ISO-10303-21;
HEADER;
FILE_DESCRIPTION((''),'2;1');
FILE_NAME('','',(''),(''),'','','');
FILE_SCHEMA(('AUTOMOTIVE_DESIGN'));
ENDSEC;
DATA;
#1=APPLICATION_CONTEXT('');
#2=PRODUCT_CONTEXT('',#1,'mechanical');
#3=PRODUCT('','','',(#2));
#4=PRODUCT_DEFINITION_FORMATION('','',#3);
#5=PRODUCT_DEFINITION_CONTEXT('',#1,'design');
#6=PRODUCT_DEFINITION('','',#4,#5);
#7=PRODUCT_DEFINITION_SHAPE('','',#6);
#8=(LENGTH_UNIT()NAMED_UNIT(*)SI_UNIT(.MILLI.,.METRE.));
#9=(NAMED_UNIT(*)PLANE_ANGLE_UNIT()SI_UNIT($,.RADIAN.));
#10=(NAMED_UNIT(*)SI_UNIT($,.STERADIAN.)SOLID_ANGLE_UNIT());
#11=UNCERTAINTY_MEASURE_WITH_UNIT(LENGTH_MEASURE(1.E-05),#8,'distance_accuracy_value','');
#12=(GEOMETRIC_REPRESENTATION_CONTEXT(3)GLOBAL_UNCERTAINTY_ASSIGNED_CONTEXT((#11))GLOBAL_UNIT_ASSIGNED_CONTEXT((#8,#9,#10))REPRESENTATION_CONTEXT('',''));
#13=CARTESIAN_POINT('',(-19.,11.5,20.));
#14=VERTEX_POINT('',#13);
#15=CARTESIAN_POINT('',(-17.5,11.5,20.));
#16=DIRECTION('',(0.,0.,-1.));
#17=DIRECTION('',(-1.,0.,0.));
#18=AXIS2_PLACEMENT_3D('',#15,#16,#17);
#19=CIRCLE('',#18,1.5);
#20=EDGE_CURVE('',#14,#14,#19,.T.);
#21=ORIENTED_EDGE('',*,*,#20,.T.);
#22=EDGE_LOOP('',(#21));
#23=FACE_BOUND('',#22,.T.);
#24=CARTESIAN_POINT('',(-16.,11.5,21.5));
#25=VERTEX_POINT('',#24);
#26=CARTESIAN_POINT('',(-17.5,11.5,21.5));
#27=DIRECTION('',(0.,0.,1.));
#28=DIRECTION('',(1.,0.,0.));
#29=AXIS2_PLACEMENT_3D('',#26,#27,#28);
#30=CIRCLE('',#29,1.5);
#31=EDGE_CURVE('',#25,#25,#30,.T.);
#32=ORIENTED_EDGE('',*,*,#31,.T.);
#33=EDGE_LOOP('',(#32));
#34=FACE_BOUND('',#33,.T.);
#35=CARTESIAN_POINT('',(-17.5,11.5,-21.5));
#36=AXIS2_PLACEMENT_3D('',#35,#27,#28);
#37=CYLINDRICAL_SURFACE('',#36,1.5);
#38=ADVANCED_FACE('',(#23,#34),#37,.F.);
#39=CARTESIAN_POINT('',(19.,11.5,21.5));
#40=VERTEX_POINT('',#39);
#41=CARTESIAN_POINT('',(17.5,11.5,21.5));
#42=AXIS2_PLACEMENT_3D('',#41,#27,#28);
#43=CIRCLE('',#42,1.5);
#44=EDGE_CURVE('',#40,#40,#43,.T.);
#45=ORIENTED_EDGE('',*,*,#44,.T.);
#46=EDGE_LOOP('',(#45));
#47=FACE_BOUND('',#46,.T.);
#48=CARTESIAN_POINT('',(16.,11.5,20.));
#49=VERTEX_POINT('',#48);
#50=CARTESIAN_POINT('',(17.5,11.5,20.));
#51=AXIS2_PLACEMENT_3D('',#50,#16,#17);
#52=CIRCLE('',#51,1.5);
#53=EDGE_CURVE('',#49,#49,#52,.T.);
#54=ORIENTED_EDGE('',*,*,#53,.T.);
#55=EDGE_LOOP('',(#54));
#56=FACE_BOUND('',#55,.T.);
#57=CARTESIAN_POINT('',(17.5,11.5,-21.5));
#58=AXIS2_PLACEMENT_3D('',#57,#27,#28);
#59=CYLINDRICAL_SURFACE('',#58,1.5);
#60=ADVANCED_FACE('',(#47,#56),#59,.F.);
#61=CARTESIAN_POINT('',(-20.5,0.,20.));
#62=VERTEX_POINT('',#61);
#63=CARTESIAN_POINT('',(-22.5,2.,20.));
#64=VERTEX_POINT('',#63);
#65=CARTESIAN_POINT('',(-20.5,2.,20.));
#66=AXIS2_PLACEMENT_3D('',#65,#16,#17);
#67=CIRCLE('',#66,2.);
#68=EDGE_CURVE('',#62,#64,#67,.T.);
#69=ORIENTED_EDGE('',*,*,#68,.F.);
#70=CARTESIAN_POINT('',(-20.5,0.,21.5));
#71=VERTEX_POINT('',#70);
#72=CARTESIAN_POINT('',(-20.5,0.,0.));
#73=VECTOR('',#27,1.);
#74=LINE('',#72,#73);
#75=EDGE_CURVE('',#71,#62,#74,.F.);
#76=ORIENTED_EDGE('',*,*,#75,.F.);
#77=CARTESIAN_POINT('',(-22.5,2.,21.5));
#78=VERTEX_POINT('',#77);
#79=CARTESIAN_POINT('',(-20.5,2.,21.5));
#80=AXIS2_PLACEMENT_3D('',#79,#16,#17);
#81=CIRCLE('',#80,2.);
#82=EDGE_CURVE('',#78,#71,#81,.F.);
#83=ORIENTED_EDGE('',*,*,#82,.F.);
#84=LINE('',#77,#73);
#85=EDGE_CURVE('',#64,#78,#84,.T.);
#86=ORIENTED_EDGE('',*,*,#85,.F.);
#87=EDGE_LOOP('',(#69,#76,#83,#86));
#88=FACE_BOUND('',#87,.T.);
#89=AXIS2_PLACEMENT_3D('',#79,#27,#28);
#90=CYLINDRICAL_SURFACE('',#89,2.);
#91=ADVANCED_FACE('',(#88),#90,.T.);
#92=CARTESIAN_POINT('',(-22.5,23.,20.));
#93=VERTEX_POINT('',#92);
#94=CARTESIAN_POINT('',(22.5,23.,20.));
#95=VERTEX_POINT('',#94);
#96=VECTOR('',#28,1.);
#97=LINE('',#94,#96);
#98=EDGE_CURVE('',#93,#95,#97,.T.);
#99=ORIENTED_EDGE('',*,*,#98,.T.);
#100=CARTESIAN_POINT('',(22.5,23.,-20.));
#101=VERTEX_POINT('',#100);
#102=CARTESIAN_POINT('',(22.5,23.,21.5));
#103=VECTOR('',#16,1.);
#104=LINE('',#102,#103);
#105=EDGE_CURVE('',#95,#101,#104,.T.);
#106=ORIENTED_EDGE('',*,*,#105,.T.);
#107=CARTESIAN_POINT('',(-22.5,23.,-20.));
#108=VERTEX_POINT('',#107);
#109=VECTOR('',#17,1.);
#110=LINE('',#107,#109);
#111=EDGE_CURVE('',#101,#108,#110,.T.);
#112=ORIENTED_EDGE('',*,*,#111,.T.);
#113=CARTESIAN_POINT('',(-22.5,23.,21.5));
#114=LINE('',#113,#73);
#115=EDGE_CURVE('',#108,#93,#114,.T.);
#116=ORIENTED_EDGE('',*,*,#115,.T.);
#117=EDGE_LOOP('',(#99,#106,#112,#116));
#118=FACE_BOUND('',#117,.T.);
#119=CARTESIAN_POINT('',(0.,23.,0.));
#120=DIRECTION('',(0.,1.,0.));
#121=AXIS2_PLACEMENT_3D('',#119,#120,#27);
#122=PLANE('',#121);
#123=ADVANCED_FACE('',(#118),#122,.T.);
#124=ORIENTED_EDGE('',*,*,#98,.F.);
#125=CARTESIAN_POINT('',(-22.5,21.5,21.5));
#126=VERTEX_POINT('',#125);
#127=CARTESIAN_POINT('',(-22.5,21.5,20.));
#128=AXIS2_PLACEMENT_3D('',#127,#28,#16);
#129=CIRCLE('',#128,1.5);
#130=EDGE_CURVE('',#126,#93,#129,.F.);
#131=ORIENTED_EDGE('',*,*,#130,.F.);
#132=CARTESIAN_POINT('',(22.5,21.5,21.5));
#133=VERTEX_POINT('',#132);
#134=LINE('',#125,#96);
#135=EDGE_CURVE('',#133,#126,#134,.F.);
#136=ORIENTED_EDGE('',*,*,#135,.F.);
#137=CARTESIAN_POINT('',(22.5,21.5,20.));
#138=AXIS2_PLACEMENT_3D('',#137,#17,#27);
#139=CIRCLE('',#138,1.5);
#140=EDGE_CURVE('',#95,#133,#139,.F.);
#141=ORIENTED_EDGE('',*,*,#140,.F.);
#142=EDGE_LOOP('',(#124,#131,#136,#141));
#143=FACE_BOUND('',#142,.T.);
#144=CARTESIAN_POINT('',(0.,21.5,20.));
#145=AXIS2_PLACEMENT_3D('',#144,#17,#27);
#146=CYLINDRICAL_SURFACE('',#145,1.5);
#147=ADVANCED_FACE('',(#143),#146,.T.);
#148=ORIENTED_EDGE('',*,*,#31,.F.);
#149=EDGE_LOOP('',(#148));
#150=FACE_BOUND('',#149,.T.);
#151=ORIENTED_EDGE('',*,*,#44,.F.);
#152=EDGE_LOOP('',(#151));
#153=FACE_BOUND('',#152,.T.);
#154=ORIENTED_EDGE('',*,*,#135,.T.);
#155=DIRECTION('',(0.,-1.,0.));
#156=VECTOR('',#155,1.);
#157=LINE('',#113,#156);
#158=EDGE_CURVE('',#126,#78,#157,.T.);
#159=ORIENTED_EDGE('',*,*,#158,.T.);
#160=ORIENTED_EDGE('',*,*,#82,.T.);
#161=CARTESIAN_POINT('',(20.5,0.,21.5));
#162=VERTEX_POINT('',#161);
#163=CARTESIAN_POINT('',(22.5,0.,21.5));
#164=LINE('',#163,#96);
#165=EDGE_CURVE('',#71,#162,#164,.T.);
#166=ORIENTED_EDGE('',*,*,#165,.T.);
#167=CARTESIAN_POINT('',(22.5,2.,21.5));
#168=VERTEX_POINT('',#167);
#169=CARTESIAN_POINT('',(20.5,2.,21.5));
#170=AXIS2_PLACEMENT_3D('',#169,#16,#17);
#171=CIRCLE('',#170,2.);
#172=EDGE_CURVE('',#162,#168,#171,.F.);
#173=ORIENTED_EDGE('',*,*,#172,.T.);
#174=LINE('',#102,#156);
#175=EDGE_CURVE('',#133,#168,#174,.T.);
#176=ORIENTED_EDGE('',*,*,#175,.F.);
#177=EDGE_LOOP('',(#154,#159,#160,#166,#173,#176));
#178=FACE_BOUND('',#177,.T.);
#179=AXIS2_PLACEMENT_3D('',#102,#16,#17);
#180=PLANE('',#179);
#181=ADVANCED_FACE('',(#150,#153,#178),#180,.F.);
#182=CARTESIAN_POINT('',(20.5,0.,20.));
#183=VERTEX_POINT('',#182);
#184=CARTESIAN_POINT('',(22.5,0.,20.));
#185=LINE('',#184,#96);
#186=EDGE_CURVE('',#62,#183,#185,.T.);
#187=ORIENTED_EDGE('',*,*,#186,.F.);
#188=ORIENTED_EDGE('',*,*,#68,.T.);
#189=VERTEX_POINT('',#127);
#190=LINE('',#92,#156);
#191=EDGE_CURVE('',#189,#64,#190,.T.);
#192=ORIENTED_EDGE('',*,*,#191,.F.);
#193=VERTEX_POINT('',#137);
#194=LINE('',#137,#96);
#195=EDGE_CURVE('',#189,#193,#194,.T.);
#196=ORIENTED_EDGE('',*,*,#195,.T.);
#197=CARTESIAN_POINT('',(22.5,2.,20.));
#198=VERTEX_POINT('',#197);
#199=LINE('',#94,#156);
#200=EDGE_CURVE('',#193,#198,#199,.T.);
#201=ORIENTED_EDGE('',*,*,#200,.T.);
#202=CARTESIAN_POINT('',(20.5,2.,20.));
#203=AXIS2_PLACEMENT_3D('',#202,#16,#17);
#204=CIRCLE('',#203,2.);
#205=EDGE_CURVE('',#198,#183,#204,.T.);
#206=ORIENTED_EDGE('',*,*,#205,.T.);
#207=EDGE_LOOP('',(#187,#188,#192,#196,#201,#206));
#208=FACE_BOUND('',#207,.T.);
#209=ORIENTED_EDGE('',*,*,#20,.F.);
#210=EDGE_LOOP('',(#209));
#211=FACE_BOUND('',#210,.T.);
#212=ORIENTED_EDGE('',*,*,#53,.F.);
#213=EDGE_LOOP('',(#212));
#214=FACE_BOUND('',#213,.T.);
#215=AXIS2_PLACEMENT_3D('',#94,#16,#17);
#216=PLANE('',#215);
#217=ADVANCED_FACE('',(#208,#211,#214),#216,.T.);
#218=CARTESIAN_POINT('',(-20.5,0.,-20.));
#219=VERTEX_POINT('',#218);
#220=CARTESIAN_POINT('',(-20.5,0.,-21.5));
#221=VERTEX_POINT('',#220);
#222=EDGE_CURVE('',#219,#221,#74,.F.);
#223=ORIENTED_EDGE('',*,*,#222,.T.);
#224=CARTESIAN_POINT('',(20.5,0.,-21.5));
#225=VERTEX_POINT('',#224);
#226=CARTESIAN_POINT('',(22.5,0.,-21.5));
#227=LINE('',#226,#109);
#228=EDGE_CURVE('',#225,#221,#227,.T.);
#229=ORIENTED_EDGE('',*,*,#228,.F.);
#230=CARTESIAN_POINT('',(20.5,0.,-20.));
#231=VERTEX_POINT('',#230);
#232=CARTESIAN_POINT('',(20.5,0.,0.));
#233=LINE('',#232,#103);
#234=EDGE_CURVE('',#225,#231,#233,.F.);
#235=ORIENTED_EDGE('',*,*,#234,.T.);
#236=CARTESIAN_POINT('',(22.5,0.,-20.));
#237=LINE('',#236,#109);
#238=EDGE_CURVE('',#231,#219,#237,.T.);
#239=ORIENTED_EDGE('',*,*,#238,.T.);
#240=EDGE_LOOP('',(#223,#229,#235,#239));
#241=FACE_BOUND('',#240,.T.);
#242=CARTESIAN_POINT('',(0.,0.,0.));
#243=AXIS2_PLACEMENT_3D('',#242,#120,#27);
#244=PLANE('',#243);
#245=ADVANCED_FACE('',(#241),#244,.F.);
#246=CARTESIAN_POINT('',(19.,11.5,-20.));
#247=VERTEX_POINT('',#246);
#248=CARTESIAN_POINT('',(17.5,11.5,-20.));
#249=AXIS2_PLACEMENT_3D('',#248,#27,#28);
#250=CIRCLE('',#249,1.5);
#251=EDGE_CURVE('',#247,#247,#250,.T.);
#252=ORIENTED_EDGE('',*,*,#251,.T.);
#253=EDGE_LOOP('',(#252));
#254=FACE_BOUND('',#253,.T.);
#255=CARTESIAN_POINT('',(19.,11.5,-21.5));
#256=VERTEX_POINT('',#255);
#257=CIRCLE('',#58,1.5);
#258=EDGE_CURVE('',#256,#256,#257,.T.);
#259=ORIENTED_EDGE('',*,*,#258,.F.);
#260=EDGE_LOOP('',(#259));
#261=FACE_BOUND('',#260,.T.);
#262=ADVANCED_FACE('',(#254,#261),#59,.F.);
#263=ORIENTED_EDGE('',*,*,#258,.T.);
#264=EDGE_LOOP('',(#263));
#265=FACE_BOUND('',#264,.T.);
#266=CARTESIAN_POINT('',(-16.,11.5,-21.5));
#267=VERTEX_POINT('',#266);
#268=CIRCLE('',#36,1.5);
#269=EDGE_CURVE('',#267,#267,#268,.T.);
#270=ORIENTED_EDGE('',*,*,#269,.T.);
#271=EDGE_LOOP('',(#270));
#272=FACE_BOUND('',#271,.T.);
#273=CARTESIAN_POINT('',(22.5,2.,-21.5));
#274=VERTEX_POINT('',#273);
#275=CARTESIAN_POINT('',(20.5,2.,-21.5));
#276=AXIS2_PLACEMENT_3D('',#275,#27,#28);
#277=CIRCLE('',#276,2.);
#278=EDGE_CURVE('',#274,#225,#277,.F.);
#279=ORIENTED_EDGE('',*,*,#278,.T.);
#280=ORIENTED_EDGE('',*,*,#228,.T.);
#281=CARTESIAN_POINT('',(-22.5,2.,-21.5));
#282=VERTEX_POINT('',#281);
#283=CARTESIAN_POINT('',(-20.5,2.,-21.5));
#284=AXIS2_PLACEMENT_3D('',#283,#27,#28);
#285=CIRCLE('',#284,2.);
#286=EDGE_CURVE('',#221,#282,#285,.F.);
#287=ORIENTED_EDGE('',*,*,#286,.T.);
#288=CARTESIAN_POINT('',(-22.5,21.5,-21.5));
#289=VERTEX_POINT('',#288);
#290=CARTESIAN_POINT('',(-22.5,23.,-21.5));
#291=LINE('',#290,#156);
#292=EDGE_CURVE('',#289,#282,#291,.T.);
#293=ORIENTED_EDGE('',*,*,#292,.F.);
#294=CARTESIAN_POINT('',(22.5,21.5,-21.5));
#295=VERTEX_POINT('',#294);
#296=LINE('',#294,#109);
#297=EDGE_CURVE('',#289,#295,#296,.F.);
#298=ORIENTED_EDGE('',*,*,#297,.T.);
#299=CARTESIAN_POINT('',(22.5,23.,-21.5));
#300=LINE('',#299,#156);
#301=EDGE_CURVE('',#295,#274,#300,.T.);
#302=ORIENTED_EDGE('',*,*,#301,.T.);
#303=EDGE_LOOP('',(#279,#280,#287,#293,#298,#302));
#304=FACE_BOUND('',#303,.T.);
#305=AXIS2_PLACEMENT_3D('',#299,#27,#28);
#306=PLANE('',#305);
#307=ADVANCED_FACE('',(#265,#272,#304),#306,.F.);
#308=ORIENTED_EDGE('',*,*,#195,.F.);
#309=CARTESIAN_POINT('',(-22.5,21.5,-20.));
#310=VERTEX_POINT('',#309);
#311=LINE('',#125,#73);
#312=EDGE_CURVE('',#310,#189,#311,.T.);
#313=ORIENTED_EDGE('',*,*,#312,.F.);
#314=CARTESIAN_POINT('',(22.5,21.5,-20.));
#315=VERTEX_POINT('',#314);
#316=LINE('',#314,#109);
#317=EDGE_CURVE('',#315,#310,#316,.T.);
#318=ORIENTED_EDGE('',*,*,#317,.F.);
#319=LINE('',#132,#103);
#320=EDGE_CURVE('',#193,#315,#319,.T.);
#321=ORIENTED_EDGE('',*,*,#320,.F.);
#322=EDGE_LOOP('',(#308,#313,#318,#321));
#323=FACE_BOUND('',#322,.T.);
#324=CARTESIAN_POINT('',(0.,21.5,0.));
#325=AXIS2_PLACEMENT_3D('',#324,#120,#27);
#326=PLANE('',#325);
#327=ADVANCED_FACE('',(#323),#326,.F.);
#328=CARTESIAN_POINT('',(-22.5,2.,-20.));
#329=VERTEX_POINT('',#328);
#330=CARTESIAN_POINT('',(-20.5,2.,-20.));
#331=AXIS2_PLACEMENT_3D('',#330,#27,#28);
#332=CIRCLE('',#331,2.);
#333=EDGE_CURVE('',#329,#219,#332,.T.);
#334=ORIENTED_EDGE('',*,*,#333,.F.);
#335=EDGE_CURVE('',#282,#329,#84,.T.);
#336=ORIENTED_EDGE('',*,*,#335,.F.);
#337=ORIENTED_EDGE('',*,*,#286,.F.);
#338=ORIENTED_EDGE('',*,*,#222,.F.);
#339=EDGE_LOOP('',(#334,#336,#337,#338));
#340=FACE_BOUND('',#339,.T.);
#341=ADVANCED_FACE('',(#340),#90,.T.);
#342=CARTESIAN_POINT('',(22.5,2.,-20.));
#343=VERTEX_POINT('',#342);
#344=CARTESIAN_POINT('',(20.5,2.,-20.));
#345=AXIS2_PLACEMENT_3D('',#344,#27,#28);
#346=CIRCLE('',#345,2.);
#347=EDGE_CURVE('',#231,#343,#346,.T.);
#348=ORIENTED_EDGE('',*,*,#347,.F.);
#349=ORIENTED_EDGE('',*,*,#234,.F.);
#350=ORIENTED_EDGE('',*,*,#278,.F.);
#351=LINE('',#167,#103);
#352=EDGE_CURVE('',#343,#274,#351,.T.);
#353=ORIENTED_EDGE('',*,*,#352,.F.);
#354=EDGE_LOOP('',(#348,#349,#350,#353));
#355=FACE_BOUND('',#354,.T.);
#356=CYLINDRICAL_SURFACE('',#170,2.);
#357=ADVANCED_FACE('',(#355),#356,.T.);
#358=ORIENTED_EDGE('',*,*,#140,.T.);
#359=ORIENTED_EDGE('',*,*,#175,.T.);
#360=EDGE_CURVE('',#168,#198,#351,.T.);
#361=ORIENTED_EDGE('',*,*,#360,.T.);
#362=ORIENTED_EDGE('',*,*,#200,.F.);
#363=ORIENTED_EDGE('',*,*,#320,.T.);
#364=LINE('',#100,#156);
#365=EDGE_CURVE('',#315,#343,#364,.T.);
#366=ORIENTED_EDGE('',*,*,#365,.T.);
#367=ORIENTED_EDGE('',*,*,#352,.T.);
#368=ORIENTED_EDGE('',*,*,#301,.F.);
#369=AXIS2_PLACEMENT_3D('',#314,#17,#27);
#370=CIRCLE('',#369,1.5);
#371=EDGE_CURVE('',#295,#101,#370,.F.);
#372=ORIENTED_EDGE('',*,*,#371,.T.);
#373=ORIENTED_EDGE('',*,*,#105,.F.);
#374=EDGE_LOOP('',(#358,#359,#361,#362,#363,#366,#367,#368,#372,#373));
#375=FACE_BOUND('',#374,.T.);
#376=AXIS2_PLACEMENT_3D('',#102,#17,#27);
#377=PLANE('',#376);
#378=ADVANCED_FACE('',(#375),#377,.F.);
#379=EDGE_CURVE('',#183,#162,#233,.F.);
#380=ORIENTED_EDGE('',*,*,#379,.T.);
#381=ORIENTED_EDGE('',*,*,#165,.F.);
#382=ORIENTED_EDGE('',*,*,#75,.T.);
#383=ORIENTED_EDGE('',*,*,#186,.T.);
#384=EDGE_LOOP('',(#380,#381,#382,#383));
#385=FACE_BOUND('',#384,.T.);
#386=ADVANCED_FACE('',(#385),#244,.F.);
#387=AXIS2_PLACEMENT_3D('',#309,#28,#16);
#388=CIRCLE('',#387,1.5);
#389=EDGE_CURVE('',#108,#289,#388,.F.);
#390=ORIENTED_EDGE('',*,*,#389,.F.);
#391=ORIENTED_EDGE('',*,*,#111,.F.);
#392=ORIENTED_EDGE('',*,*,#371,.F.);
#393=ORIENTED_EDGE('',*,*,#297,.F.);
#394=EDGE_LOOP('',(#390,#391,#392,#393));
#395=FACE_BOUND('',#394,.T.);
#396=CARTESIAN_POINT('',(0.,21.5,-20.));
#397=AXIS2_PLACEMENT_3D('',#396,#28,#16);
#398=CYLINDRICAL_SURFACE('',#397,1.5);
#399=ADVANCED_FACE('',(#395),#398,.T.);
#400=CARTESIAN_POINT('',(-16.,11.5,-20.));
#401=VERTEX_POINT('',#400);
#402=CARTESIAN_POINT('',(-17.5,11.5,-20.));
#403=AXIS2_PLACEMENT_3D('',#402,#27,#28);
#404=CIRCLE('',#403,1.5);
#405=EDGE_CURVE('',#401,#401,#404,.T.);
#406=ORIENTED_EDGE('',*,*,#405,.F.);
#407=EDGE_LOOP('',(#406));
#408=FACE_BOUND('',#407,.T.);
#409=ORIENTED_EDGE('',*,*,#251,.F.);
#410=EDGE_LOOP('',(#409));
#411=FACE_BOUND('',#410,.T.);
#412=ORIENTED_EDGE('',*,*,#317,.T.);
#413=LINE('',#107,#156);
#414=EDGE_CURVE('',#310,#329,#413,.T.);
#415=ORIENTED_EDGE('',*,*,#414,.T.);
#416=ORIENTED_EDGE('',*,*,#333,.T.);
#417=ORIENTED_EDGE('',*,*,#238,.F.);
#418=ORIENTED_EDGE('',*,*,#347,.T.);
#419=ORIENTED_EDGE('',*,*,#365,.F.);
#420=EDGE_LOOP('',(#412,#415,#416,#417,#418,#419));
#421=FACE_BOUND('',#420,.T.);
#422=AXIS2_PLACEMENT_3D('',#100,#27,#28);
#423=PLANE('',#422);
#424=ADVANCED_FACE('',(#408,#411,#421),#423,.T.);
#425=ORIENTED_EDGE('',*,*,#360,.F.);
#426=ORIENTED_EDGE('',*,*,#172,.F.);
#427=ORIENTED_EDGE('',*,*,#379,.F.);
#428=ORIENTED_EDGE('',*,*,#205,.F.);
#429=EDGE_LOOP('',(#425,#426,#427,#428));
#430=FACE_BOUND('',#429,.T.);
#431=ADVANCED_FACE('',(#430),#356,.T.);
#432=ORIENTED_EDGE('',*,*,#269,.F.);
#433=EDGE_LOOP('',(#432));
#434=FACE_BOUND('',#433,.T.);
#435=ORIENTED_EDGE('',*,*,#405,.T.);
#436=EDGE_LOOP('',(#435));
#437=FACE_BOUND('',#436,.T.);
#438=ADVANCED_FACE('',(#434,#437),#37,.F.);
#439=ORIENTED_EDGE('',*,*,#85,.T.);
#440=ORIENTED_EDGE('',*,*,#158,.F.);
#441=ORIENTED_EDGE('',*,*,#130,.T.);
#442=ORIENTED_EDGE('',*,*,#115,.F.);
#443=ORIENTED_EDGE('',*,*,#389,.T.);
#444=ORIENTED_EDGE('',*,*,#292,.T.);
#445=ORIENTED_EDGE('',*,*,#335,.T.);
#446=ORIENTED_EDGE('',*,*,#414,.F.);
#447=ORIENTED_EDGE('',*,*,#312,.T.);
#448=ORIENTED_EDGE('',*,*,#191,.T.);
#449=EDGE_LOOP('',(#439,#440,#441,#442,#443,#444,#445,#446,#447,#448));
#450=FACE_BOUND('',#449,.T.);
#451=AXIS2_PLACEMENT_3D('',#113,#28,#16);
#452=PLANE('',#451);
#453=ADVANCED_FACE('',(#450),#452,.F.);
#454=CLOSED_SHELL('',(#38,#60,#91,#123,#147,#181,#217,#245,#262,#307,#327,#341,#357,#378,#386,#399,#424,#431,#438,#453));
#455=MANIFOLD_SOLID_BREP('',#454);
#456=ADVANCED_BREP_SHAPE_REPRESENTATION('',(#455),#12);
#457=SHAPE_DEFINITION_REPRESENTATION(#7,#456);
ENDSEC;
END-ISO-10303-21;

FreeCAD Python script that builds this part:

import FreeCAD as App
import Part
import Sketcher
Q = App.Units.Quantity


def edges_at(feature, points):
    """Names of the edges that pass closest to the given points."""
    edges = feature.Shape.Edges
    near = lambda p: min(range(len(edges)), key=lambda i: edges[i].distToShape(Part.Vertex(*p))[0])
    return sorted({f"Edge{near(p) + 1}" for p in points})


def faces_at(feature, points):
    """Names of the faces that lie closest to the given points."""
    faces = feature.Shape.Faces
    near = lambda p: min(range(len(faces)), key=lambda i: faces[i].distToShape(Part.Vertex(*p))[0])
    return sorted({f"Face{near(p) + 1}" for p in points})


def add_polygon(sketch, points):
    """Adds a closed chain of lines whose ends are joined by coincident constraints."""
    first, n = sketch.GeometryCount, len(points)
    for a, b in zip(points, points[1:] + points[:1]):
        sketch.addGeometry(Part.LineSegment(App.Vector(*a, 0), App.Vector(*b, 0)), False)
    for i in range(n):
        sketch.addConstraint(Sketcher.Constraint("Coincident", first + i, 2, first + (i + 1) % n, 1))

doc = App.newDocument("Part")
body = doc.addObject("PartDesign::Body", "Body")

# Sketch on XZ plane
sketch1 = doc.addObject("Sketcher::SketchObject", "Sketch")
body.addObject(sketch1)
sketch1.AttachmentSupport = (doc.XZ_Plane, [""])
sketch1.MapMode = "FlatFace"
add_polygon(sketch1, [(-22, -22), (-22, 22), (22, 22), (22, -22)])  # lines 0-3
sketch1.addConstraint([
    Sketcher.Constraint("Vertical", 0),
    Sketcher.Constraint("Horizontal", 1),
    Sketcher.Constraint("Vertical", 2),
    Sketcher.Constraint("Horizontal", 3),
    Sketcher.Constraint("Symmetric", 0, 2, 2, 2, -1, 1),
    Sketcher.Constraint("DistanceX", 1, 1, 1, 2, Q("45 mm")),
    Sketcher.Constraint("DistanceY", 0, 1, 0, 2, Q("43 mm")),
])
pad1 = doc.addObject("PartDesign::Pad", "Pad")
body.addObject(pad1)
pad1.Profile = sketch1
pad1.Length = 23
pad1.Reversed = True
doc.recompute()

thickness = doc.addObject("PartDesign::Thickness", "Thickness")
body.addObject(thickness)
thickness.Base = (pad1, faces_at(pad1, [(0, 0, 0), (22.5, 11.5, 0), (-22.5, 11.5, 0)]))
thickness.Value = 1.5
thickness.Reversed = True
thickness.Join = "Intersection"

# Sketch on XY plane
sketch2 = doc.addObject("Sketcher::SketchObject", "Sketch001")
body.addObject(sketch2)
sketch2.AttachmentSupport = (doc.XY_Plane, [""])
sketch2.MapMode = "FlatFace"
sketch2.AttachmentOffset = App.Placement(App.Vector(0, 0, 21.5), App.Rotation())
sketch2.addGeometry([
    Part.Circle(App.Vector(-17.5, 11.5, 0), App.Vector(0, 0, 1), 1.5),
    Part.Circle(App.Vector(17.5, 11.5, 0), App.Vector(0, 0, 1), 1.5),
], False)
sketch2.addConstraint([
    Sketcher.Constraint("Equal", 0, 1),
    Sketcher.Constraint("Symmetric", 0, 3, 1, 3, -2),
    Sketcher.Constraint("Diameter", 0, Q("3 mm")),
    Sketcher.Constraint("DistanceX", 0, 3, 1, 3, Q("35 mm")),
    Sketcher.Constraint("DistanceY", -1, 1, 0, 3, Q("11.5 mm")),
])
pocket1 = doc.addObject("PartDesign::Pocket", "Pocket")
body.addObject(pocket1)
pocket1.Profile = sketch2
pocket1.Type = "ThroughAll"
doc.recompute()

fillet = doc.addObject("PartDesign::Fillet", "Fillet")
body.addObject(fillet)
fillet.Base = (pocket1, edges_at(pocket1, [(0, 23, -21.5), (0, 23, 21.5)]))
fillet.Radius = 1.5
doc.recompute()

fillet2 = doc.addObject("PartDesign::Fillet", "Fillet001")
body.addObject(fillet2)
fillet2.Base = (fillet, edges_at(fillet, [
    (-22.5, 0, 20.75),
    (22.5, 0, -20.75),
    (22.5, 0, 20.75),
    (-22.5, 0, -20.75),
]))
fillet2.Radius = 2

doc.recompute()
